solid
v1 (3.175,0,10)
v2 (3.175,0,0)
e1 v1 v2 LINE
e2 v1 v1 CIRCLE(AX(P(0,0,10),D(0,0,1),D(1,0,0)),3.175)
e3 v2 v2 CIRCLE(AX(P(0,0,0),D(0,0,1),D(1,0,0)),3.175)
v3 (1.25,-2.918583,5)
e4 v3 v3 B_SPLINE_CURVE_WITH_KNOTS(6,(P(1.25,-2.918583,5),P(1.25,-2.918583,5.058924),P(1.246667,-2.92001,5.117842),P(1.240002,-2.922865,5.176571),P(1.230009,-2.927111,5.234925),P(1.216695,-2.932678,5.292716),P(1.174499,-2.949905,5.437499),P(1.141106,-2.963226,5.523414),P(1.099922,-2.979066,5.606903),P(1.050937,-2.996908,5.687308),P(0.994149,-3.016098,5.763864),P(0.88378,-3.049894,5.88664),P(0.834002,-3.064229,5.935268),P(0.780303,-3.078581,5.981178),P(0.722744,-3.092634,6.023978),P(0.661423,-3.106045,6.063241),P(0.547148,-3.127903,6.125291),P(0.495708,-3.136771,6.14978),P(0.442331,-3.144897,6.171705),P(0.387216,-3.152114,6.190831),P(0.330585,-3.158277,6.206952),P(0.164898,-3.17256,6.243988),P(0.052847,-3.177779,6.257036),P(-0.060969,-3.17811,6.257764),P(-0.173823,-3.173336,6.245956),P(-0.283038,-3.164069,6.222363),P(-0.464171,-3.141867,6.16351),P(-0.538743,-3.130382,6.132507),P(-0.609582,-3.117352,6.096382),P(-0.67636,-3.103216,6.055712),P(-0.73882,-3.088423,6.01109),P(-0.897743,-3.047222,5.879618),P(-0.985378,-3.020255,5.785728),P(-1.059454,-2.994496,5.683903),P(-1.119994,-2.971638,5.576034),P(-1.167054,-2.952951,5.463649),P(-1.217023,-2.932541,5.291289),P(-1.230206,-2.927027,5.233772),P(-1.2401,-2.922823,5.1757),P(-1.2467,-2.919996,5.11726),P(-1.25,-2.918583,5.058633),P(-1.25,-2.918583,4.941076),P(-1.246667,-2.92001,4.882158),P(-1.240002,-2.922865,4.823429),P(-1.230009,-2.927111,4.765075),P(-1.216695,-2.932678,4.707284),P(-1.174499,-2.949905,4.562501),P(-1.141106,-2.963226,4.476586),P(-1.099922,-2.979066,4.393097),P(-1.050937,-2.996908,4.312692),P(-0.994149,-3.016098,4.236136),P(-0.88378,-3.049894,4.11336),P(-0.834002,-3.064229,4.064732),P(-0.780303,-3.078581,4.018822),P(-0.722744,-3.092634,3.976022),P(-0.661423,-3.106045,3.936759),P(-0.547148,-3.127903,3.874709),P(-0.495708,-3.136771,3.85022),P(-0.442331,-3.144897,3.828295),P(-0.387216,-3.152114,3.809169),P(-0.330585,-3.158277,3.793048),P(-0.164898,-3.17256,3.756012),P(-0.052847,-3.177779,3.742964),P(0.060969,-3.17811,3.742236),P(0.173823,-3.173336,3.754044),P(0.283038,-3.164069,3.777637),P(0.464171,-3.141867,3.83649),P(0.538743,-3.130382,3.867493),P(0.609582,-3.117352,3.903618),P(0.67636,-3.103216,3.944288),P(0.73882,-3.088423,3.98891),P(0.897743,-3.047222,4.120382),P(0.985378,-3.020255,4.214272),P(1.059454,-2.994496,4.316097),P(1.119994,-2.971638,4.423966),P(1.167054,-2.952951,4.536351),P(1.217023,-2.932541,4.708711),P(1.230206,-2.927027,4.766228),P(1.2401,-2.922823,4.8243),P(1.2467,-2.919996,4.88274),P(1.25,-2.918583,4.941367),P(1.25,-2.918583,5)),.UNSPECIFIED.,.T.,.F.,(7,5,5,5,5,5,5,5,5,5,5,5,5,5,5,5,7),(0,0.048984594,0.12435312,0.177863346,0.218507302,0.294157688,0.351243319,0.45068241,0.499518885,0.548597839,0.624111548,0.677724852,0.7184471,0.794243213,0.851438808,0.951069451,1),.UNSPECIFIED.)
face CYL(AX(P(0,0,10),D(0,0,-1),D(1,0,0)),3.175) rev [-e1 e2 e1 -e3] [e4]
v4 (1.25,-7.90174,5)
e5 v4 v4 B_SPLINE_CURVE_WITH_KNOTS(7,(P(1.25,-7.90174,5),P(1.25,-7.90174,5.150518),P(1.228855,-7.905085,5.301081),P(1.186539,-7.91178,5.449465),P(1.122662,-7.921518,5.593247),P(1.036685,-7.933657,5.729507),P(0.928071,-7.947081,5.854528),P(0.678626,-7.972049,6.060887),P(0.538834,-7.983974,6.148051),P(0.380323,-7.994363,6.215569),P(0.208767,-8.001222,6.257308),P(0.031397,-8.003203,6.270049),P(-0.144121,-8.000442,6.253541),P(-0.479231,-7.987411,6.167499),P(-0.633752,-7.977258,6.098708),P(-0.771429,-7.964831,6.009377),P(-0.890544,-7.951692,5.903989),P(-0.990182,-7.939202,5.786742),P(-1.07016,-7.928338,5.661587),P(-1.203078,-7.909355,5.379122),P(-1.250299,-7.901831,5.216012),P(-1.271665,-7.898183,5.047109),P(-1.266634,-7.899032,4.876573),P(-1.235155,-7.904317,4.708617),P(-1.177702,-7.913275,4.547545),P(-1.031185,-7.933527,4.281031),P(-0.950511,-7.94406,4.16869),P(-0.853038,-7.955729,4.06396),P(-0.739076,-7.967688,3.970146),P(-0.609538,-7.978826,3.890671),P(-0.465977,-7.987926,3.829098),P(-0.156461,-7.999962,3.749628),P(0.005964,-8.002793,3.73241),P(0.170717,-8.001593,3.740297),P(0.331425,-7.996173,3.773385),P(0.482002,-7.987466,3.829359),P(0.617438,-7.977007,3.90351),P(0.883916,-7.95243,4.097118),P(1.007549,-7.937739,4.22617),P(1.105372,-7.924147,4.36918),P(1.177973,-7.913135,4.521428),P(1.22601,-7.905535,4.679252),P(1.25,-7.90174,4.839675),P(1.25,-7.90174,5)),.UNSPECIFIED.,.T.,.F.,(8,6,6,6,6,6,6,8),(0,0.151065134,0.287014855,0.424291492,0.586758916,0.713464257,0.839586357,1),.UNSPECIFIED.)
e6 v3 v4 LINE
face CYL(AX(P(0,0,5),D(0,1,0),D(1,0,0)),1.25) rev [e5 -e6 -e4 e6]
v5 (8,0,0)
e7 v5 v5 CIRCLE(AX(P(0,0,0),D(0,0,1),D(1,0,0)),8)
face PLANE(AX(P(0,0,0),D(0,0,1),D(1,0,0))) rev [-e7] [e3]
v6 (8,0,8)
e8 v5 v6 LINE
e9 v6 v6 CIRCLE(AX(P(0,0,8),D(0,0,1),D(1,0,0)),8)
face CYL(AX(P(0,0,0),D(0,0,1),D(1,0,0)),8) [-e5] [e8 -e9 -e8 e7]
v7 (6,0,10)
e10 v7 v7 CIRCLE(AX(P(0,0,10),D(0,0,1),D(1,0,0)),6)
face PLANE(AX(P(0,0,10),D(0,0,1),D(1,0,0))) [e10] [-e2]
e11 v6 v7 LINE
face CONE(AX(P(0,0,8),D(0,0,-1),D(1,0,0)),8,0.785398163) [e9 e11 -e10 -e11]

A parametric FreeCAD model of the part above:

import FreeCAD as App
import Part
import Sketcher
from FreeCAD import Vector
Q = App.Units.Quantity

doc = App.newDocument("Part")
body = doc.addObject("PartDesign::Body", "Body")

sketch1 = body.newObject("Sketcher::SketchObject", "Sketch")
sketch1.AttachmentSupport = (doc.getObject("XZ_Plane"), [""])
sketch1.MapMode = "FlatFace"
sketch1.addGeometry([
    Part.LineSegment(Vector(3.2, 10, 0), Vector(3.2, 0, 0)),
    Part.LineSegment(Vector(3.2, 0, 0), Vector(8, 0, 0)),
    Part.LineSegment(Vector(8, 0, 0), Vector(8, 8, 0)),
    Part.LineSegment(Vector(8, 8, 0), Vector(6, 10, 0)),
    Part.LineSegment(Vector(6, 10, 0), Vector(3.2, 10, 0)),
], False)
sketch1.addConstraint([
    Sketcher.Constraint("Coincident", 0, 2, 1, 1),
    Sketcher.Constraint("Coincident", 1, 2, 2, 1),
    Sketcher.Constraint("Coincident", 2, 2, 3, 1),
    Sketcher.Constraint("Coincident", 3, 2, 4, 1),
    Sketcher.Constraint("Coincident", 4, 2, 0, 1),
    Sketcher.Constraint("Vertical", 0),
    Sketcher.Constraint("Horizontal", 1),
    Sketcher.Constraint("Vertical", 2),
    Sketcher.Constraint("Horizontal", 4),
    Sketcher.Constraint("PointOnObject", 0, 2, -1),
    Sketcher.Constraint("DistanceY", 0, 2, 0, 1, Q("10 mm")),
    Sketcher.Constraint("DistanceY", 2, 1, 2, 2, Q("8 mm")),
    Sketcher.Constraint("Angle", 3, Q("135 deg")),
    Sketcher.Constraint("DistanceX", -1, 1, 1, 2, Q("8 mm")),
    Sketcher.Constraint("DistanceX", 1, 1, 1, 2, Q("4.825 mm")),
])
revolution = body.newObject("PartDesign::Revolution", "Revolution")
revolution.Profile = sketch1
revolution.ReferenceAxis = (sketch1, ["V_Axis"])
revolution.Angle = 360

sketch2 = body.newObject("Sketcher::SketchObject", "Sketch001")
sketch2.AttachmentSupport = (doc.getObject("XZ_Plane"), [""])
sketch2.MapMode = "FlatFace"
sketch2.addGeometry(Part.Circle(Vector(0, 5, 0), Vector(0, 0, 1), 1.2), False)
sketch2.addConstraint([
    Sketcher.Constraint("PointOnObject", 0, 3, -2),
    Sketcher.Constraint("Diameter", 0, Q("2.5 mm")),
    Sketcher.Constraint("DistanceY", -1, 1, 0, 3, Q("5 mm")),
])
pocket1 = body.newObject("PartDesign::Pocket", "Pocket")
pocket1.Profile = sketch2
pocket1.Length = 25
pocket1.Reversed = True

doc.recompute()
